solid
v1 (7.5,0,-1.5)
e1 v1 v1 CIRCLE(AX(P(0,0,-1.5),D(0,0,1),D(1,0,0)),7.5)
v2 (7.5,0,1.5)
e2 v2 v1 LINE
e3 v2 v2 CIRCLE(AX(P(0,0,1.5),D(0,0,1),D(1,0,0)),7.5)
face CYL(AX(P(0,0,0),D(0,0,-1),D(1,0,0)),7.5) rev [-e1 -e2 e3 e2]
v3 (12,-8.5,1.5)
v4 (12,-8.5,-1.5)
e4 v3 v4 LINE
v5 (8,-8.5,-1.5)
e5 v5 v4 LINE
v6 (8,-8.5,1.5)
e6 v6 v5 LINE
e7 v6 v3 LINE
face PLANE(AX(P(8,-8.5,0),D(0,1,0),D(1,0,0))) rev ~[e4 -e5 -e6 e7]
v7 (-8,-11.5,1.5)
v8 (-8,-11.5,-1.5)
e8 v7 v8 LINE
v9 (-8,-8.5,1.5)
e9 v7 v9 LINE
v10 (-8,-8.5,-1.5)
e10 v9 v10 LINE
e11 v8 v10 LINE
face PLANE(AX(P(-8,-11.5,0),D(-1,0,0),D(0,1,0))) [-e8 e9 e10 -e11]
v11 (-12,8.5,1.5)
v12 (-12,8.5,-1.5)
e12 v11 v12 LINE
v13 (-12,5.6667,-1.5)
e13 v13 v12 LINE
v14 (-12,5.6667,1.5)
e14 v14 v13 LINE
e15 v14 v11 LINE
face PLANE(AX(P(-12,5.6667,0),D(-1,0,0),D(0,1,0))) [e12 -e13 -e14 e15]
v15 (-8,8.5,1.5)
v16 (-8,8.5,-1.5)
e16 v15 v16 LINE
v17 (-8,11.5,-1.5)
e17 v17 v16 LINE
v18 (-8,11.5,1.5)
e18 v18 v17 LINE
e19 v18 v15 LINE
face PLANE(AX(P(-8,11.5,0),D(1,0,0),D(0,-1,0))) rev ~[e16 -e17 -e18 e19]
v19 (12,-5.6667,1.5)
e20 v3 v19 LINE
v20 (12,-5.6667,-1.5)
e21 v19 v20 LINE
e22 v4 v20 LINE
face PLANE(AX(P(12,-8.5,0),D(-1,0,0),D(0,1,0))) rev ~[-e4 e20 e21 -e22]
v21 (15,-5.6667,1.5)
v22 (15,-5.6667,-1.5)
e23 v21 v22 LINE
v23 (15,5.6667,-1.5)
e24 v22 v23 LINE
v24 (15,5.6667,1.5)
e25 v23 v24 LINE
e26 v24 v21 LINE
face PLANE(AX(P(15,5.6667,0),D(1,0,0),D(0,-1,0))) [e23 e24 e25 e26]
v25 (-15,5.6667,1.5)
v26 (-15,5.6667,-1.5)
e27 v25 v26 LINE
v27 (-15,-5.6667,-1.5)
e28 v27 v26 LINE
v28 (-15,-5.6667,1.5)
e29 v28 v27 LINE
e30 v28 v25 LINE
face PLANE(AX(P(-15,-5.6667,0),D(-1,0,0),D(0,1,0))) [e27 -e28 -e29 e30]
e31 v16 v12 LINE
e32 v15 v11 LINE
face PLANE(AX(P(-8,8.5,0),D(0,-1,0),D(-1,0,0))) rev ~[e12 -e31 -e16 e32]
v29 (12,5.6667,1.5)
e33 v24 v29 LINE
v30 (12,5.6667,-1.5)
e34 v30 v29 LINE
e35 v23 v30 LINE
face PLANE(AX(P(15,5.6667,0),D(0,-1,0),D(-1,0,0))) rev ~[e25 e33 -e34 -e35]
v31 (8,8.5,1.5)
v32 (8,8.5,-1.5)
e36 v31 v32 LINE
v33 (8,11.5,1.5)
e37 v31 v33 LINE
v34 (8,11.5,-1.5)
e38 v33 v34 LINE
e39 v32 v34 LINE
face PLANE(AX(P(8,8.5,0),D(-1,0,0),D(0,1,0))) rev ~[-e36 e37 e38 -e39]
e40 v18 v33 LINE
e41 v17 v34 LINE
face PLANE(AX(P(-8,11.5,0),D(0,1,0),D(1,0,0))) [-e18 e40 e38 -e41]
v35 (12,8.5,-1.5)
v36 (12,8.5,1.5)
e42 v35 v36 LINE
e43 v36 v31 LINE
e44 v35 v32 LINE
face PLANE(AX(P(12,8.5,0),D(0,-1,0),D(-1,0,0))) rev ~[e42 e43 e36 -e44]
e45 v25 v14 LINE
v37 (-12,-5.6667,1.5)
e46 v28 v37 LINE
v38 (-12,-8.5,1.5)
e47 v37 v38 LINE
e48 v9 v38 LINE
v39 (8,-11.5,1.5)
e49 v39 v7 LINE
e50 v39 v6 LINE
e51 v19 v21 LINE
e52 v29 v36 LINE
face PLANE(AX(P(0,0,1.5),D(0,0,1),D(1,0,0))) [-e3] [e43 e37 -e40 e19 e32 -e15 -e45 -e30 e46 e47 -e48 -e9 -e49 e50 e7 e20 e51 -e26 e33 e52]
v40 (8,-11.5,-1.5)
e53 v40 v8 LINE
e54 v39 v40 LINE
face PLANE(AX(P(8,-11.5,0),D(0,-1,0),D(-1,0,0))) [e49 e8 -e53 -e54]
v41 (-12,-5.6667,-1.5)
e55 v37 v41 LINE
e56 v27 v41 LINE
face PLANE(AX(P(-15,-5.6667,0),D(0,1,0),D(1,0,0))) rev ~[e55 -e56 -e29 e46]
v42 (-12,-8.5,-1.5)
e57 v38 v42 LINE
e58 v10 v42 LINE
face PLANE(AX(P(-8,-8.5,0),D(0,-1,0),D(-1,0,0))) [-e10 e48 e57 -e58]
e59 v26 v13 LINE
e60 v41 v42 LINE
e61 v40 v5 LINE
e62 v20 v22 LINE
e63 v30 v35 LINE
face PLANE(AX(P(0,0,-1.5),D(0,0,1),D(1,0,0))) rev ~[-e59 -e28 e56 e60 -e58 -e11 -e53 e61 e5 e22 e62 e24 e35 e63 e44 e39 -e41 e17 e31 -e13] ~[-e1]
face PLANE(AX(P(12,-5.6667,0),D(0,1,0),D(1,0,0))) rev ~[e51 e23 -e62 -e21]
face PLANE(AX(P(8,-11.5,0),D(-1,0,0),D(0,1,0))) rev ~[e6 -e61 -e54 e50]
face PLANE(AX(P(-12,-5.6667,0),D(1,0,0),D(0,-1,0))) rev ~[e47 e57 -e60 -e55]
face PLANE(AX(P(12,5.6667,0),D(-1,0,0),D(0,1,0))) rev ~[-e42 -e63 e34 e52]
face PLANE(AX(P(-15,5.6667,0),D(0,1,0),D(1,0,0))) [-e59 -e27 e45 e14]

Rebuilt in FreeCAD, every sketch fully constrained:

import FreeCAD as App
import Part
import Sketcher
Q = App.Units.Quantity

doc = App.newDocument("Part")
params = doc.addObject("Spreadsheet::Sheet", "Params")
for row, (alias, value) in enumerate([
    ("sketch1_diameter", "15 mm"),
    ("sketch1_width", "3 mm"),
    ("sketch1_width2", "16 mm"),
    ("pad1_length", "3 mm"),
], start=1):
    params.set(f"A{row}", alias)
    params.set(f"B{row}", "=" + value)
    params.setAlias(f"B{row}", alias)

body = doc.addObject("PartDesign::Body", "Body")

# Sketch on XY plane
sketch1 = body.newObject("Sketcher::SketchObject", "Sketch")
sketch1.AttachmentSupport = (doc.getObject("XY_Plane"), [""])
sketch1.MapMode = "FlatFace"
sketch1.addGeometry([
    Part.LineSegment(App.Vector(15, -5.7, 0), App.Vector(15, 5.7, 0)),  # 0
    Part.LineSegment(App.Vector(15, 5.7, 0), App.Vector(12, 5.7, 0)),  # 1
    Part.LineSegment(App.Vector(12, 5.7, 0), App.Vector(12, 8.5, 0)),  # 2
    Part.LineSegment(App.Vector(12, 8.5, 0), App.Vector(8, 8.5, 0)),  # 3
    Part.LineSegment(App.Vector(8, 8.5, 0), App.Vector(8, 11.5, 0)),  # 4
    Part.LineSegment(App.Vector(8, 11.5, 0), App.Vector(-8, 11.5, 0)),  # 5
    Part.LineSegment(App.Vector(-8, 11.5, 0), App.Vector(-8, 8.5, 0)),  # 6
    Part.LineSegment(App.Vector(-8, 8.5, 0), App.Vector(-12, 8.5, 0)),  # 7
    Part.LineSegment(App.Vector(-12, 8.5, 0), App.Vector(-12, 5.7, 0)),  # 8
    Part.LineSegment(App.Vector(-12, 5.7, 0), App.Vector(-15, 5.7, 0)),  # 9
    Part.LineSegment(App.Vector(-15, 5.7, 0), App.Vector(-15, -5.7, 0)),  # 10
    Part.LineSegment(App.Vector(-15, -5.7, 0), App.Vector(-12, -5.7, 0)),  # 11
    Part.LineSegment(App.Vector(-12, -5.7, 0), App.Vector(-12, -8.5, 0)),  # 12
    Part.LineSegment(App.Vector(-12, -8.5, 0), App.Vector(-8, -8.5, 0)),  # 13
    Part.LineSegment(App.Vector(-8, -8.5, 0), App.Vector(-8, -11.5, 0)),  # 14
    Part.LineSegment(App.Vector(-8, -11.5, 0), App.Vector(8, -11.5, 0)),  # 15
    Part.LineSegment(App.Vector(8, -11.5, 0), App.Vector(8, -8.5, 0)),  # 16
    Part.LineSegment(App.Vector(8, -8.5, 0), App.Vector(12, -8.5, 0)),  # 17
    Part.LineSegment(App.Vector(12, -8.5, 0), App.Vector(12, -5.7, 0)),  # 18
    Part.LineSegment(App.Vector(12, -5.7, 0), App.Vector(15, -5.7, 0)),  # 19
    Part.Circle(App.Vector(0, 0, 0), App.Vector(0, 0, 1), 7.5),  # 20
], False)
sketch1.addConstraint([
    Sketcher.Constraint("Coincident", 0, 2, 1, 1),
    Sketcher.Constraint("Coincident", 1, 2, 2, 1),
    Sketcher.Constraint("Coincident", 2, 2, 3, 1),
    Sketcher.Constraint("Coincident", 3, 2, 4, 1),
    Sketcher.Constraint("Coincident", 4, 2, 5, 1),
    Sketcher.Constraint("Coincident", 5, 2, 6, 1),
    Sketcher.Constraint("Coincident", 6, 2, 7, 1),
    Sketcher.Constraint("Coincident", 7, 2, 8, 1),
    Sketcher.Constraint("Coincident", 8, 2, 9, 1),
    Sketcher.Constraint("Coincident", 9, 2, 10, 1),
    Sketcher.Constraint("Coincident", 10, 2, 11, 1),
    Sketcher.Constraint("Coincident", 11, 2, 12, 1),
    Sketcher.Constraint("Coincident", 12, 2, 13, 1),
    Sketcher.Constraint("Coincident", 13, 2, 14, 1),
    Sketcher.Constraint("Coincident", 14, 2, 15, 1),
    Sketcher.Constraint("Coincident", 15, 2, 16, 1),
    Sketcher.Constraint("Coincident", 16, 2, 17, 1),
    Sketcher.Constraint("Coincident", 17, 2, 18, 1),
    Sketcher.Constraint("Coincident", 18, 2, 19, 1),
    Sketcher.Constraint("Coincident", 19, 2, 0, 1),
    Sketcher.Constraint("Vertical", 0),
    Sketcher.Constraint("Horizontal", 1),
    Sketcher.Constraint("Vertical", 2),
    Sketcher.Constraint("Horizontal", 3),
    Sketcher.Constraint("Vertical", 4),
    Sketcher.Constraint("Horizontal", 5),
    Sketcher.Constraint("Vertical", 6),
    Sketcher.Constraint("Horizontal", 7),
    Sketcher.Constraint("Vertical", 8),
    Sketcher.Constraint("Horizontal", 9),
    Sketcher.Constraint("Vertical", 10),
    Sketcher.Constraint("Horizontal", 11),
    Sketcher.Constraint("Vertical", 12),
    Sketcher.Constraint("Horizontal", 13),
    Sketcher.Constraint("Vertical", 14),
    Sketcher.Constraint("Horizontal", 15),
    Sketcher.Constraint("Vertical", 16),
    Sketcher.Constraint("Horizontal", 17),
    Sketcher.Constraint("Vertical", 18),
    Sketcher.Constraint("Horizontal", 19),
    Sketcher.Constraint("Coincident", 20, 3, -1, 1),
    Sketcher.Constraint("Symmetric", 0, 2, 10, 2, -1, 1),
    Sketcher.Constraint("Symmetric", 2, 2, 12, 2, -1, 1),
    Sketcher.Constraint("Symmetric", 4, 2, 14, 2, -1, 1),
    Sketcher.Constraint("Symmetric", 6, 2, 16, 2, -1, 1),
    Sketcher.Constraint("Symmetric", 8, 2, 18, 2, -1, 1),
    Sketcher.Constraint("Symmetric", 3, 2, 6, 2, -2),
    Sketcher.Constraint("Symmetric", 1, 2, 8, 2, -2),
    Sketcher.Constraint("Equal", 19, 4),
    Sketcher.Constraint("Diameter", 20, Q("15 mm")),
    Sketcher.Constraint("DistanceX", 1, 2, 1, 1, Q("3 mm")),
    Sketcher.Constraint("DistanceX", 5, 2, 5, 1, Q("16 mm")),
    Sketcher.Constraint("DistanceX", -1, 1, 0, 2, Q("15 mm")),
    Sketcher.Constraint("DistanceY", 0, 1, 0, 2, Q("11.3334 mm")),
    Sketcher.Constraint("DistanceY", -1, 1, 2, 2, Q("8.5 mm")),
])
sketch1.setExpression("Constraints[49]", "Params.sketch1_diameter")
sketch1.setExpression("Constraints[50]", "Params.sketch1_width")
sketch1.setExpression("Constraints[51]", "Params.sketch1_width2")
pad1 = body.newObject("PartDesign::Pad", "Pad")
pad1.Profile = sketch1
pad1.setExpression("Length", "Params.pad1_length")
pad1.Midplane = True

doc.recompute()
